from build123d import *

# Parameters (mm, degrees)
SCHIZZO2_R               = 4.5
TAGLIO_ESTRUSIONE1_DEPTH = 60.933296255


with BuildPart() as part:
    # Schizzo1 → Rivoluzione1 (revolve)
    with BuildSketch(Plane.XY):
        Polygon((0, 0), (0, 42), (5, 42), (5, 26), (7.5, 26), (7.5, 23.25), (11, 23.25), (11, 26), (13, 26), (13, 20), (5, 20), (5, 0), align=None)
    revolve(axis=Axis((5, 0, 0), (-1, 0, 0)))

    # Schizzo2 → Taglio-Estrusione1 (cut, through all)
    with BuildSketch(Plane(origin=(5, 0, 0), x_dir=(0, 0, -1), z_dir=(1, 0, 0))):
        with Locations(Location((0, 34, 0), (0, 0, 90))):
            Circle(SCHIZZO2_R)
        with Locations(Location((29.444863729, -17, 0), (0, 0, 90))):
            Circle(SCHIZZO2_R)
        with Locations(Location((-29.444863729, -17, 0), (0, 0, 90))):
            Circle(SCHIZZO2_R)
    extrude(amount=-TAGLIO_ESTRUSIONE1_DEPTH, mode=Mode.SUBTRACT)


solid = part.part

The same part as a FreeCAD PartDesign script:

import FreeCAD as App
import Part
import Sketcher
Q = App.Units.Quantity

doc = App.newDocument("Part")
body = doc.addObject("PartDesign::Body", "Body")

# Sketch on XY plane
sketch1 = doc.addObject("Sketcher::SketchObject", "Sketch")
body.addObject(sketch1)
sketch1.AttachmentSupport = (doc.XY_Plane, [""])
sketch1.MapMode = "FlatFace"
sketch1.addGeometry(Part.LineSegment(App.Vector(0, 42, 0), App.Vector(0, 0, 0)), False)
sketch1.addGeometry(Part.LineSegment(App.Vector(0, 0, 0), App.Vector(5, 0, 0)), False)
sketch1.addGeometry(Part.LineSegment(App.Vector(5, 0, 0), App.Vector(5, 20, 0)), False)
sketch1.addGeometry(Part.LineSegment(App.Vector(5, 20, 0), App.Vector(13, 20, 0)), False)
sketch1.addGeometry(Part.LineSegment(App.Vector(13, 20, 0), App.Vector(13, 26, 0)), False)
sketch1.addGeometry(Part.LineSegment(App.Vector(13, 26, 0), App.Vector(11, 26, 0)), False)
sketch1.addGeometry(Part.LineSegment(App.Vector(11, 26, 0), App.Vector(11, 23.2, 0)), False)
sketch1.addGeometry(Part.LineSegment(App.Vector(11, 23.2, 0), App.Vector(7.5, 23.2, 0)), False)
sketch1.addGeometry(Part.LineSegment(App.Vector(7.5, 23.2, 0), App.Vector(7.5, 26, 0)), False)
sketch1.addGeometry(Part.LineSegment(App.Vector(7.5, 26, 0), App.Vector(5, 26, 0)), False)
sketch1.addGeometry(Part.LineSegment(App.Vector(5, 26, 0), App.Vector(5, 42, 0)), False)
sketch1.addGeometry(Part.LineSegment(App.Vector(5, 42, 0), App.Vector(0, 42, 0)), False)
sketch1.addConstraint(Sketcher.Constraint("Coincident", 0, 2, 1, 1))
sketch1.addConstraint(Sketcher.Constraint("Coincident", 1, 2, 2, 1))
sketch1.addConstraint(Sketcher.Constraint("Coincident", 2, 2, 3, 1))
sketch1.addConstraint(Sketcher.Constraint("Coincident", 3, 2, 4, 1))
sketch1.addConstraint(Sketcher.Constraint("Coincident", 4, 2, 5, 1))
sketch1.addConstraint(Sketcher.Constraint("Coincident", 5, 2, 6, 1))
sketch1.addConstraint(Sketcher.Constraint("Coincident", 6, 2, 7, 1))
sketch1.addConstraint(Sketcher.Constraint("Coincident", 7, 2, 8, 1))
sketch1.addConstraint(Sketcher.Constraint("Coincident", 8, 2, 9, 1))
sketch1.addConstraint(Sketcher.Constraint("Coincident", 9, 2, 10, 1))
sketch1.addConstraint(Sketcher.Constraint("Coincident", 10, 2, 11, 1))
sketch1.addConstraint(Sketcher.Constraint("Coincident", 11, 2, 0, 1))
sketch1.addConstraint(Sketcher.Constraint("Vertical", 0))
sketch1.addConstraint(Sketcher.Constraint("Horizontal", 1))
sketch1.addConstraint(Sketcher.Constraint("Vertical", 2))
sketch1.addConstraint(Sketcher.Constraint("Horizontal", 3))
sketch1.addConstraint(Sketcher.Constraint("Vertical", 4))
sketch1.addConstraint(Sketcher.Constraint("Horizontal", 5))
sketch1.addConstraint(Sketcher.Constraint("Vertical", 6))
sketch1.addConstraint(Sketcher.Constraint("Horizontal", 7))
sketch1.addConstraint(Sketcher.Constraint("Vertical", 8))
sketch1.addConstraint(Sketcher.Constraint("Horizontal", 9))
sketch1.addConstraint(Sketcher.Constraint("Vertical", 10))
sketch1.addConstraint(Sketcher.Constraint("Horizontal", 11))
sketch1.addConstraint(Sketcher.Constraint("Coincident", 0, 2, -1, 1))
sketch1.addConstraint(Sketcher.Constraint("Horizontal", 5, 2, 8, 2))
sketch1.addConstraint(Sketcher.Constraint("Vertical", 2, 2, 9, 2))
sketch1.addConstraint(Sketcher.Constraint("DistanceX", 1, 1, 1, 2, Q("5 mm")))
sketch1.addConstraint(Sketcher.Constraint("DistanceX", 3, 1, 3, 2, Q("8 mm")))
sketch1.addConstraint(Sketcher.Constraint("DistanceX", 5, 2, 5, 1, Q("2 mm")))
sketch1.addConstraint(Sketcher.Constraint("DistanceY", 0, 2, 0, 1, Q("42 mm")))
sketch1.addConstraint(Sketcher.Constraint("DistanceY", 2, 1, 2, 2, Q("20 mm")))
sketch1.addConstraint(Sketcher.Constraint("DistanceY", 4, 1, 4, 2, Q("6 mm")))
sketch1.addConstraint(Sketcher.Constraint("DistanceX", 7, 2, 7, 1, Q("3.5 mm")))
sketch1.addConstraint(Sketcher.Constraint("DistanceY", 6, 2, 6, 1, Q("2.75 mm")))
revolution = doc.addObject("PartDesign::Revolution", "Revolution")
body.addObject(revolution)
revolution.Profile = sketch1
revolution.ReferenceAxis = (sketch1, ["H_Axis"])
revolution.Angle = 360

# Sketch on YZ plane
sketch2 = doc.addObject("Sketcher::SketchObject", "Sketch001")
body.addObject(sketch2)
sketch2.AttachmentSupport = (doc.YZ_Plane, [""])
sketch2.MapMode = "FlatFace"
sketch2.AttachmentOffset = App.Placement(App.Vector(0, 0, 5), App.Rotation())
sketch2.addGeometry(Part.Circle(App.Vector(34, 0, 0), App.Vector(0, 0, 1), 4.5), False)
sketch2.addGeometry(Part.Circle(App.Vector(-17, -29.4, 0), App.Vector(0, 0, 1), 4.5), False)
sketch2.addGeometry(Part.Circle(App.Vector(-17, 29.4, 0), App.Vector(0, 0, 1), 4.5), False)
sketch2.addConstraint(Sketcher.Constraint("Equal", 0, 1))
sketch2.addConstraint(Sketcher.Constraint("Equal", 1, 2))
sketch2.addConstraint(Sketcher.Constraint("Symmetric", 1, 3, 2, 3, -1))
sketch2.addConstraint(Sketcher.Constraint("PointOnObject", 0, 3, -1))
sketch2.addConstraint(Sketcher.Constraint("Diameter", 0, Q("9 mm")))
sketch2.addConstraint(Sketcher.Constraint("DistanceX", -1, 1, 0, 3, Q("34 mm")))
sketch2.addConstraint(Sketcher.Constraint("DistanceX", 1, 3, -1, 1, Q("17 mm")))
sketch2.addConstraint(Sketcher.Constraint("DistanceY", 1, 3, -1, 1, Q("29.444864 mm")))
pocket1 = doc.addObject("PartDesign::Pocket", "Pocket")
body.addObject(pocket1)
pocket1.Profile = sketch2
pocket1.Type = "ThroughAll"

doc.recompute()
